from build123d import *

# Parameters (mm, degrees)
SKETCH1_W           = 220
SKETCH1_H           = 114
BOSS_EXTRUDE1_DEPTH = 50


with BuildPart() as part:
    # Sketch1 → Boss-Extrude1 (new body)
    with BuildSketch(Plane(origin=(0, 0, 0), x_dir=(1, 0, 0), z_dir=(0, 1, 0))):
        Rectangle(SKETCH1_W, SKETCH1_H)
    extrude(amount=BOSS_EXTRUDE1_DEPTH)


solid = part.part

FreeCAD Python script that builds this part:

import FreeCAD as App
import Part
import Sketcher
from FreeCAD import Vector

doc = App.newDocument("Part")
body = doc.addObject("PartDesign::Body", "Body")

# Sketch on XZ plane
sketch1 = body.newObject("Sketcher::SketchObject", "Sketch")
sketch1.AttachmentSupport = (doc.getObject("XZ_Plane"), [""])
sketch1.MapMode = "FlatFace"
sketch1.addGeometry([
    Part.LineSegment(Vector(-110, -57, 0), Vector(-110, 57, 0)),
    Part.LineSegment(Vector(-110, 57, 0), Vector(110, 57, 0)),
    Part.LineSegment(Vector(110, 57, 0), Vector(110, -57, 0)),
    Part.LineSegment(Vector(110, -57, 0), Vector(-110, -57, 0)),
], False)
sketch1.addConstraint([
    Sketcher.Constraint("Coincident", 0, 2, 1, 1),
    Sketcher.Constraint("Coincident", 1, 2, 2, 1),
    Sketcher.Constraint("Coincident", 2, 2, 3, 1),
    Sketcher.Constraint("Coincident", 3, 2, 0, 1),
    Sketcher.Constraint("Vertical", 0),
    Sketcher.Constraint("Horizontal", 1),
    Sketcher.Constraint("Vertical", 2),
    Sketcher.Constraint("Horizontal", 3),
    Sketcher.Constraint("Symmetric", 0, 2, 2, 2, -1, 1),
    Sketcher.Constraint("DistanceX", 1, 1, 1, 2, 220.0),
    Sketcher.Constraint("DistanceY", 0, 1, 0, 2, 114.0),
])
pad1 = body.newObject("PartDesign::Pad", "Pad")
pad1.Profile = sketch1
pad1.Length = 50
pad1.Reversed = True

doc.recompute()
